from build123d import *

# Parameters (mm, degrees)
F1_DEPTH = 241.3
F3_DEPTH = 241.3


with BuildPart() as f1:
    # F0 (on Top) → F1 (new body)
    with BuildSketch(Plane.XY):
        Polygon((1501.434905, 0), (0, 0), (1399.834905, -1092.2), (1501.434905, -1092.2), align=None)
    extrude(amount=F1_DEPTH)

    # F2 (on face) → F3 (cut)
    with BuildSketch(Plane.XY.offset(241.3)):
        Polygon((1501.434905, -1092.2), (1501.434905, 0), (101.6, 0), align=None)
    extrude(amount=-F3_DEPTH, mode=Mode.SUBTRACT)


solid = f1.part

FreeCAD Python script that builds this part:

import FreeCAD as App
import Part
import Sketcher
Q = App.Units.Quantity

doc = App.newDocument("Part")
params = doc.addObject("Spreadsheet::Sheet", "Params")
for row, (alias, value) in enumerate([
    ("sketch1_width", "4 in"),
    ("sketch1_height", "43 in"),
    ("sketch1_length", "69.902 in"),
    ("pad1_length", "9.5 in"),
    ("sketch2_height", "43 in"),
    ("sketch2_length", "69.902 in"),
    ("pocket1_length", "9.5 in"),
], start=1):
    params.set(f"A{row}", alias)
    params.set(f"B{row}", "=" + value)
    params.setAlias(f"B{row}", alias)

body = doc.addObject("PartDesign::Body", "Body")

sketch1 = body.newObject("Sketcher::SketchObject", "Sketch")
sketch1.AttachmentSupport = (doc.getObject("XY_Plane"), [""])
sketch1.MapMode = "FlatFace"
sketch1.addGeometry(Part.LineSegment(App.Vector(1501, 0, 0), App.Vector(0, 0, 0)), False)
sketch1.addGeometry(Part.LineSegment(App.Vector(0, 0, 0), App.Vector(1400, -1092, 0)), False)
sketch1.addGeometry(Part.LineSegment(App.Vector(1400, -1092, 0), App.Vector(1501, -1092, 0)), False)
sketch1.addGeometry(Part.LineSegment(App.Vector(1501, -1092, 0), App.Vector(1501, 0, 0)), False)
sketch1.addConstraint(Sketcher.Constraint("Coincident", 0, 2, 1, 1))
sketch1.addConstraint(Sketcher.Constraint("Coincident", 1, 2, 2, 1))
sketch1.addConstraint(Sketcher.Constraint("Coincident", 2, 2, 3, 1))
sketch1.addConstraint(Sketcher.Constraint("Coincident", 3, 2, 0, 1))
sketch1.addConstraint(Sketcher.Constraint("Horizontal", 0))
sketch1.addConstraint(Sketcher.Constraint("Horizontal", 2))
sketch1.addConstraint(Sketcher.Constraint("Vertical", 3))
sketch1.addConstraint(Sketcher.Constraint("Coincident", 0, 2, -1, 1))
sketch1.addConstraint(Sketcher.Constraint("DistanceX", 2, 1, 2, 2, Q("4 in")))
sketch1.addConstraint(Sketcher.Constraint("DistanceY", 3, 1, 3, 2, Q("43 in")))
sketch1.addConstraint(Sketcher.Constraint("Distance", 1, Q("69.902 in")))
sketch1.setExpression("Constraints[8]", "Params.sketch1_width")
sketch1.setExpression("Constraints[9]", "Params.sketch1_height")
sketch1.setExpression("Constraints[10]", "Params.sketch1_length")
pad1 = body.newObject("PartDesign::Pad", "Pad")
pad1.Profile = sketch1
pad1.setExpression("Length", "Params.pad1_length")

sketch2 = body.newObject("Sketcher::SketchObject", "Sketch001")
sketch2.AttachmentSupport = (doc.getObject("XY_Plane"), [""])
sketch2.MapMode = "FlatFace"
sketch2.AttachmentOffset = App.Placement(App.Vector(0, 0, 9.5 * 25.4), App.Rotation())
sketch2.addGeometry(Part.LineSegment(App.Vector(1501, -1092, 0), App.Vector(1501, 0, 0)), False)
sketch2.addGeometry(Part.LineSegment(App.Vector(1501, 0, 0), App.Vector(102, 0, 0)), False)
sketch2.addGeometry(Part.LineSegment(App.Vector(102, 0, 0), App.Vector(1501, -1092, 0)), False)
sketch2.addConstraint(Sketcher.Constraint("Coincident", 0, 2, 1, 1))
sketch2.addConstraint(Sketcher.Constraint("Coincident", 1, 2, 2, 1))
sketch2.addConstraint(Sketcher.Constraint("Coincident", 2, 2, 0, 1))
sketch2.addConstraint(Sketcher.Constraint("Vertical", 0))
sketch2.addConstraint(Sketcher.Constraint("Horizontal", 1))
sketch2.addConstraint(Sketcher.Constraint("PointOnObject", 0, 2, -1))
sketch2.addConstraint(Sketcher.Constraint("DistanceY", 0, 1, 0, 2, Q("43 in")))
sketch2.addConstraint(Sketcher.Constraint("DistanceX", -1, 1, 1, 2, Q("4 in")))
sketch2.addConstraint(Sketcher.Constraint("Distance", 2, Q("69.902 in")))
sketch2.setExpression("Constraints[6]", "Params.sketch2_height")
sketch2.setExpression("Constraints[8]", "Params.sketch2_length")
pocket1 = body.newObject("PartDesign::Pocket", "Pocket")
pocket1.Profile = sketch2
pocket1.setExpression("Length", "Params.pocket1_length")

doc.recompute()
